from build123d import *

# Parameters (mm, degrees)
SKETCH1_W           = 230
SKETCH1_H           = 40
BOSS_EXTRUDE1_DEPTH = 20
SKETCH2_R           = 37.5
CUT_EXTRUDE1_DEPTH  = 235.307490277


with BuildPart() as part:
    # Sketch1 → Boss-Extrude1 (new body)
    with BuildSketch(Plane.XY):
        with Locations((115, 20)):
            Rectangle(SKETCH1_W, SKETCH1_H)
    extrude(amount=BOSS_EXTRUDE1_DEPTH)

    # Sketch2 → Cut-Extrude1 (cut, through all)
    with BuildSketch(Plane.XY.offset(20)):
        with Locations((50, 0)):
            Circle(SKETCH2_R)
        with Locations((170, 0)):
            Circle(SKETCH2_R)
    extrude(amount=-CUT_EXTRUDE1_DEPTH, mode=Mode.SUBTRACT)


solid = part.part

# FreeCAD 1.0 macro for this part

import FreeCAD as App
import Part
import Sketcher
from FreeCAD import Vector

doc = App.newDocument("Part")
body = doc.addObject("PartDesign::Body", "Body")

# Sketch on XY plane
sketch1 = doc.addObject("Sketcher::SketchObject", "Sketch")
body.addObject(sketch1)
sketch1.AttachmentSupport = (doc.XY_Plane, [""])
sketch1.MapMode = "FlatFace"
sketch1.addGeometry(Part.LineSegment(Vector(0, 40, 0), Vector(0, 0, 0)), False)
sketch1.addGeometry(Part.LineSegment(Vector(0, 0, 0), Vector(230, 0, 0)), False)
sketch1.addGeometry(Part.LineSegment(Vector(230, 0, 0), Vector(230, 40, 0)), False)
sketch1.addGeometry(Part.LineSegment(Vector(230, 40, 0), Vector(0, 40, 0)), False)
sketch1.addConstraint(Sketcher.Constraint("Coincident", 0, 2, 1, 1))
sketch1.addConstraint(Sketcher.Constraint("Coincident", 1, 2, 2, 1))
sketch1.addConstraint(Sketcher.Constraint("Coincident", 2, 2, 3, 1))
sketch1.addConstraint(Sketcher.Constraint("Coincident", 3, 2, 0, 1))
sketch1.addConstraint(Sketcher.Constraint("Vertical", 0))
sketch1.addConstraint(Sketcher.Constraint("Horizontal", 1))
sketch1.addConstraint(Sketcher.Constraint("Vertical", 2))
sketch1.addConstraint(Sketcher.Constraint("Horizontal", 3))
sketch1.addConstraint(Sketcher.Constraint("Coincident", 0, 2, -1, 1))
sketch1.addConstraint(Sketcher.Constraint("DistanceX", 1, 1, 1, 2, 230.0))
sketch1.addConstraint(Sketcher.Constraint("DistanceY", 0, 2, 0, 1, 40.0))
pad1 = doc.addObject("PartDesign::Pad", "Pad")
body.addObject(pad1)
pad1.Profile = sketch1
pad1.Length = 20

# Sketch on XY plane
sketch2 = doc.addObject("Sketcher::SketchObject", "Sketch001")
body.addObject(sketch2)
sketch2.AttachmentSupport = (doc.XY_Plane, [""])
sketch2.MapMode = "FlatFace"
sketch2.AttachmentOffset = App.Placement(Vector(0, 0, 20), App.Rotation())
sketch2.addGeometry(Part.Circle(Vector(50, 0, 0), Vector(0, 0, 1), 38), False)
sketch2.addGeometry(Part.Circle(Vector(170, 0, 0), Vector(0, 0, 1), 38), False)
sketch2.addConstraint(Sketcher.Constraint("Equal", 0, 1))
sketch2.addConstraint(Sketcher.Constraint("PointOnObject", 0, 3, -1))
sketch2.addConstraint(Sketcher.Constraint("PointOnObject", 1, 3, -1))
sketch2.addConstraint(Sketcher.Constraint("Diameter", 0, 75.0))
sketch2.addConstraint(Sketcher.Constraint("DistanceX", -1, 1, 0, 3, 50.0))
sketch2.addConstraint(Sketcher.Constraint("DistanceX", -1, 1, 1, 3, 170.0))
pocket1 = doc.addObject("PartDesign::Pocket", "Pocket")
body.addObject(pocket1)
pocket1.Profile = sketch2
pocket1.Type = "ThroughAll"

doc.recompute()
